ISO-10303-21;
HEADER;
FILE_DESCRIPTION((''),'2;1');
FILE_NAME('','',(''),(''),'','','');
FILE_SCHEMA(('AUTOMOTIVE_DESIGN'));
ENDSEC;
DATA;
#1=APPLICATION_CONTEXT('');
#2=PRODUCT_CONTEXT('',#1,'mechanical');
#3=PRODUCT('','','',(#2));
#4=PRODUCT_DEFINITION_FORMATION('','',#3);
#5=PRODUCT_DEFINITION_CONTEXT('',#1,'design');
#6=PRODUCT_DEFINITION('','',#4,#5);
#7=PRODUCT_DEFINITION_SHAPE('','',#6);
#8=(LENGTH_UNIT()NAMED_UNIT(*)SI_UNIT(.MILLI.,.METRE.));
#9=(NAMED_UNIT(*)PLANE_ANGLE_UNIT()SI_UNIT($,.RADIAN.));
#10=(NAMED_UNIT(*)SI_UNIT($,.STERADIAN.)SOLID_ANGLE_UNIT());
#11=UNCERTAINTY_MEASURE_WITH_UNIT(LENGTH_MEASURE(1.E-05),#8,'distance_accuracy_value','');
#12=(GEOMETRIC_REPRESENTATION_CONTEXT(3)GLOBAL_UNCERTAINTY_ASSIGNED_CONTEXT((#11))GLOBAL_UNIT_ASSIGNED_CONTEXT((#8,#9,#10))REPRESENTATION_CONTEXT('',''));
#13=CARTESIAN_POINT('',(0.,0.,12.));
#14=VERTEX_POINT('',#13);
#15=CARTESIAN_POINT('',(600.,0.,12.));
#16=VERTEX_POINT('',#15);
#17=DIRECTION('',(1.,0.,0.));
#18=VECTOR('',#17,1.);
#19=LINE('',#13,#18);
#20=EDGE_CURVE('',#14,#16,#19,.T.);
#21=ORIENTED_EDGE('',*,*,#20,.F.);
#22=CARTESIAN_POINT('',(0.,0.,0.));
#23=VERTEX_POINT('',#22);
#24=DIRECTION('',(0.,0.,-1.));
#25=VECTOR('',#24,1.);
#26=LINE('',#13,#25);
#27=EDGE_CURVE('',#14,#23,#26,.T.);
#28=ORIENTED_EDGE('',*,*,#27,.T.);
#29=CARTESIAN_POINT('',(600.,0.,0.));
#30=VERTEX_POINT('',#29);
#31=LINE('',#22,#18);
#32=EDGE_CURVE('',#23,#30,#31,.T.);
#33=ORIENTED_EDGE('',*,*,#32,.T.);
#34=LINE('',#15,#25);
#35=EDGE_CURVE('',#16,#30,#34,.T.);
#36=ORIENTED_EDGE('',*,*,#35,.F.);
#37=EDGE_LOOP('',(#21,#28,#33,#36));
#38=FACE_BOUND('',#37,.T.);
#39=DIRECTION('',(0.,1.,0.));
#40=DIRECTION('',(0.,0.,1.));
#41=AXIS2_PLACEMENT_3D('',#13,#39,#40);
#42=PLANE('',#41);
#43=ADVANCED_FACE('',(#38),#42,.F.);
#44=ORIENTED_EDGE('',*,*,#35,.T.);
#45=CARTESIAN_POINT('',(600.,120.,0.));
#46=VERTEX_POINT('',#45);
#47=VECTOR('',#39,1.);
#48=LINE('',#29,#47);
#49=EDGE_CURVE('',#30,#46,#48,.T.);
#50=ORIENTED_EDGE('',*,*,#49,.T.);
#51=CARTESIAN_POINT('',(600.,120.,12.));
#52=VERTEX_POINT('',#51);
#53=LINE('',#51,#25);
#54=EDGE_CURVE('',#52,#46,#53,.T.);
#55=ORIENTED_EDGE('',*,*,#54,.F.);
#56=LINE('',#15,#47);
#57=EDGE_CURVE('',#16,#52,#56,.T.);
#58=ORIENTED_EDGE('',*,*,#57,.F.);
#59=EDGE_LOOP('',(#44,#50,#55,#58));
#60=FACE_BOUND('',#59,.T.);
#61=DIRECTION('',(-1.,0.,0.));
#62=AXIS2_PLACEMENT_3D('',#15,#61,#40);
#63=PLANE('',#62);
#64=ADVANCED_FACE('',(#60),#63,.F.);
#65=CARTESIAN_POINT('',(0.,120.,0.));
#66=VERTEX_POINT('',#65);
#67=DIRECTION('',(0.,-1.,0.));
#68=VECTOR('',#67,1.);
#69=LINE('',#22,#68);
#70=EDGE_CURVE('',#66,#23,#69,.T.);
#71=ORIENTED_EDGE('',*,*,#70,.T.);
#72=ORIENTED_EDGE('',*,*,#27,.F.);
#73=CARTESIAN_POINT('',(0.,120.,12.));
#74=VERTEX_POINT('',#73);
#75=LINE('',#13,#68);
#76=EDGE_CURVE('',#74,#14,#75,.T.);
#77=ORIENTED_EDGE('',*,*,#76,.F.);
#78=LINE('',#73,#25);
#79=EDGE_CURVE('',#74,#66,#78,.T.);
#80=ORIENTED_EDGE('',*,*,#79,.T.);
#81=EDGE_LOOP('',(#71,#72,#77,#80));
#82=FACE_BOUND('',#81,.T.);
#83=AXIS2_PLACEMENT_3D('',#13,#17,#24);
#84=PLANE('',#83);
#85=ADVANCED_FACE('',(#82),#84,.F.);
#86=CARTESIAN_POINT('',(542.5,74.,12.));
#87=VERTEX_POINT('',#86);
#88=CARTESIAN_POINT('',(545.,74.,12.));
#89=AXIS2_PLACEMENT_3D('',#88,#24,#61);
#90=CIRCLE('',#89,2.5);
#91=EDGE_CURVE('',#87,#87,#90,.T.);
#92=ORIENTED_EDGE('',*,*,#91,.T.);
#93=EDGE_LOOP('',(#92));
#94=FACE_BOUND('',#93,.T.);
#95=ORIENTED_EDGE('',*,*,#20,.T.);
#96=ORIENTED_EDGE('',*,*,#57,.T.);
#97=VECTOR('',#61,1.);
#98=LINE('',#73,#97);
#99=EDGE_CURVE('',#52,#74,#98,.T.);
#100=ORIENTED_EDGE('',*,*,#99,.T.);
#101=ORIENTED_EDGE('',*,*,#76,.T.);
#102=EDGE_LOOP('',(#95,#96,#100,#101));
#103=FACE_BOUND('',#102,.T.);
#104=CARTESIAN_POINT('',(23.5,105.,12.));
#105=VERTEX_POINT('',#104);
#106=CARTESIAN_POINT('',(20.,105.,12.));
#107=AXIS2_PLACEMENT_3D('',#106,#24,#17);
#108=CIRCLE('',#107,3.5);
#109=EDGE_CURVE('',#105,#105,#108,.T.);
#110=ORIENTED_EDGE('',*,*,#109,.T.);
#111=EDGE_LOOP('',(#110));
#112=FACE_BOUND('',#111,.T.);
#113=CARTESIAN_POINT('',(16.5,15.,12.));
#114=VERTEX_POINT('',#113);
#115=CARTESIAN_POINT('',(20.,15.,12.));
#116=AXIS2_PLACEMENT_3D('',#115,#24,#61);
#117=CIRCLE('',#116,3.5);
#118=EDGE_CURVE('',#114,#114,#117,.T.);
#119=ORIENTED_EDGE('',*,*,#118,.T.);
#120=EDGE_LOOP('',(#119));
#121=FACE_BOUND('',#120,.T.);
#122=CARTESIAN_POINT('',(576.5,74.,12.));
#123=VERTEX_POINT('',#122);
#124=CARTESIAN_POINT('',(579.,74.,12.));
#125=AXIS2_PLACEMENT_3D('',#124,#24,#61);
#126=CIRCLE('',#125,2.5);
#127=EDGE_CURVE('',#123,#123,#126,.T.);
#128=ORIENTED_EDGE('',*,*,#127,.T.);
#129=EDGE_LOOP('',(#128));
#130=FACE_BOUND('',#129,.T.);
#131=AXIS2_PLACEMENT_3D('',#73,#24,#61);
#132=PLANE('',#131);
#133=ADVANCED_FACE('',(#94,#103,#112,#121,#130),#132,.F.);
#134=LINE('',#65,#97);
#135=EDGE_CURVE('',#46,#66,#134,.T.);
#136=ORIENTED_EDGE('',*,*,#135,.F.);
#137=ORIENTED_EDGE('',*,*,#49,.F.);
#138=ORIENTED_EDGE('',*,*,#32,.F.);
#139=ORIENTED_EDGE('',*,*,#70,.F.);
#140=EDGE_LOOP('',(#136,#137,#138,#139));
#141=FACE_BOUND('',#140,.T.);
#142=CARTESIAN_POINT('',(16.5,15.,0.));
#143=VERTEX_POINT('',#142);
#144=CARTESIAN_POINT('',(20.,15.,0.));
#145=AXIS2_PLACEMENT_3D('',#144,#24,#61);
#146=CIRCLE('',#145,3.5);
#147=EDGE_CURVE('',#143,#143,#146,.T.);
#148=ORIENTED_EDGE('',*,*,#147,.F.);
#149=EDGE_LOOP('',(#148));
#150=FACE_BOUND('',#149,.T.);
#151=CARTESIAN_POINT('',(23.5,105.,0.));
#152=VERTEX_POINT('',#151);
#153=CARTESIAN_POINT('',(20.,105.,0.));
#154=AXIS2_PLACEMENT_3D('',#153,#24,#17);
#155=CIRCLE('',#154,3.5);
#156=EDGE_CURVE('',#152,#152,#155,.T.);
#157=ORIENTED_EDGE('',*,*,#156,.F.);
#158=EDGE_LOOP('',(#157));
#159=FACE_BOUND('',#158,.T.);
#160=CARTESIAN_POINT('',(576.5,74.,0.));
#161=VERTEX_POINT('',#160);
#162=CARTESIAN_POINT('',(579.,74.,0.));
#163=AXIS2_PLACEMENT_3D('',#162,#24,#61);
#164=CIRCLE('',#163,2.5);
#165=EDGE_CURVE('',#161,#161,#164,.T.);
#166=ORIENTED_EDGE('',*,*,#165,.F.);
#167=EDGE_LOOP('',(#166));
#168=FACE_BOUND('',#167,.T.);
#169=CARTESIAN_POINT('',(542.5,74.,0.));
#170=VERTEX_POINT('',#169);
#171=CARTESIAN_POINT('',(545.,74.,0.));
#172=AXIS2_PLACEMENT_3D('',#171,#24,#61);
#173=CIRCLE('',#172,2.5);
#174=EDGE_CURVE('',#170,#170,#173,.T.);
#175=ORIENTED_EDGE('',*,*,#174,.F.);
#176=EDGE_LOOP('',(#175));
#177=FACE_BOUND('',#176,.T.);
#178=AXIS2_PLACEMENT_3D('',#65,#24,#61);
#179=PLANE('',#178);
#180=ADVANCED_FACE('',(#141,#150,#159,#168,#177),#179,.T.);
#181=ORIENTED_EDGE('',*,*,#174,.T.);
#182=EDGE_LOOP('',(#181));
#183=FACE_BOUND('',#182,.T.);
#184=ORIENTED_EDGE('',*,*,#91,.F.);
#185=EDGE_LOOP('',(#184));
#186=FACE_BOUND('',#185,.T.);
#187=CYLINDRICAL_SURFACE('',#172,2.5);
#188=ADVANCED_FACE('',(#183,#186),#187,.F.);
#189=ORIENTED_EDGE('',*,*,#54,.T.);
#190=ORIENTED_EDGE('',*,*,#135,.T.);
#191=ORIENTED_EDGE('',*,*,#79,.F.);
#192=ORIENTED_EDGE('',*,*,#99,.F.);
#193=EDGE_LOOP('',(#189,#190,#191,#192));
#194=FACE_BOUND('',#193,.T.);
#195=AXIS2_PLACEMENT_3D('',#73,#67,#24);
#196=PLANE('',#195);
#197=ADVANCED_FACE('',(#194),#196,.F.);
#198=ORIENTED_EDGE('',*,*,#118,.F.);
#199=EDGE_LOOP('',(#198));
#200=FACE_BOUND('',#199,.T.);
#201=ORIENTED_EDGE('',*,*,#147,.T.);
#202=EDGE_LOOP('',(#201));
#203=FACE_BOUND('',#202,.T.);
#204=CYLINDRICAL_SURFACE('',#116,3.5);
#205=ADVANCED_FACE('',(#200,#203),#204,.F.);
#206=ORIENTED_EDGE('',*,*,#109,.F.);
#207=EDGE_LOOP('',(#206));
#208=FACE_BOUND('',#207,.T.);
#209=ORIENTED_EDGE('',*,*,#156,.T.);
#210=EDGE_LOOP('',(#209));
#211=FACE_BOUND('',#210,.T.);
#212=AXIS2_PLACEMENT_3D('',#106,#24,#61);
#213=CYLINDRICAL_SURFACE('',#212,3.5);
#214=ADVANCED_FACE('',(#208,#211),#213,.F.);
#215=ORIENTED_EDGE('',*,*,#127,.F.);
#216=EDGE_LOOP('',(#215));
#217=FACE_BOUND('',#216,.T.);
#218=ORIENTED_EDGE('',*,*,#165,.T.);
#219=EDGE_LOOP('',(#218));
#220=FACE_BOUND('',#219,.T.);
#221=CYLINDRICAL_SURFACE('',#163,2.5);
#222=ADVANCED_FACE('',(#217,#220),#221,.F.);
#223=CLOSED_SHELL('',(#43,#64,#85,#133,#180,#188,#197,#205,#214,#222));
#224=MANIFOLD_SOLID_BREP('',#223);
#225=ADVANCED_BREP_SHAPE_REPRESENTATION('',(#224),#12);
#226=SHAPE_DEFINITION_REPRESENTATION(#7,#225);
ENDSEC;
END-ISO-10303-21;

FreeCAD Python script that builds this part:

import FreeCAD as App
import Part
import Sketcher


def add_polygon(sketch, points):
    """Adds a closed chain of lines whose ends are joined by coincident constraints."""
    first, n = sketch.GeometryCount, len(points)
    for a, b in zip(points, points[1:] + points[:1]):
        sketch.addGeometry(Part.LineSegment(App.Vector(*a, 0), App.Vector(*b, 0)), False)
    for i in range(n):
        sketch.addConstraint(Sketcher.Constraint("Coincident", first + i, 2, first + (i + 1) % n, 1))

doc = App.newDocument("Part")
body = doc.addObject("PartDesign::Body", "Body")

sketch1 = body.newObject("Sketcher::SketchObject", "Sketch")
sketch1.AttachmentSupport = (doc.getObject("XY_Plane"), [""])
sketch1.MapMode = "FlatFace"
add_polygon(sketch1, [(0, 120), (0, 0), (600, 0), (600, 120)])
sketch1.addConstraint(Sketcher.Constraint("Vertical", 0))
sketch1.addConstraint(Sketcher.Constraint("Horizontal", 1))
sketch1.addConstraint(Sketcher.Constraint("Vertical", 2))
sketch1.addConstraint(Sketcher.Constraint("Horizontal", 3))
sketch1.addConstraint(Sketcher.Constraint("Coincident", 0, 2, -1, 1))
sketch1.addConstraint(Sketcher.Constraint("DistanceX", 1, 1, 1, 2, 600.0))
sketch1.addConstraint(Sketcher.Constraint("DistanceY", 0, 2, 0, 1, 120.0))
pad1 = body.newObject("PartDesign::Pad", "Pad")
pad1.Profile = sketch1
pad1.Length = 12

sketch2 = body.newObject("Sketcher::SketchObject", "Sketch001")
sketch2.AttachmentSupport = (doc.getObject("XY_Plane"), [""])
sketch2.MapMode = "FlatFace"
sketch2.addGeometry(Part.Circle(App.Vector(20, 15, 0), App.Vector(0, 0, 1), 3.5), False)
sketch2.addGeometry(Part.Circle(App.Vector(20, 105, 0), App.Vector(0, 0, 1), 3.5), False)
sketch2.addConstraint(Sketcher.Constraint("Equal", 0, 1))
sketch2.addConstraint(Sketcher.Constraint("Vertical", 0, 3, 1, 3))
sketch2.addConstraint(Sketcher.Constraint("Diameter", 0, 7.0))
sketch2.addConstraint(Sketcher.Constraint("DistanceX", -1, 1, 0, 3, 20.0))
sketch2.addConstraint(Sketcher.Constraint("DistanceY", -1, 1, 0, 3, 15.0))
sketch2.addConstraint(Sketcher.Constraint("DistanceY", -1, 1, 1, 3, 105.0))
pocket1 = body.newObject("PartDesign::Pocket", "Pocket")
pocket1.Profile = sketch2
pocket1.Type = "ThroughAll"
pocket1.Reversed = True

sketch3 = body.newObject("Sketcher::SketchObject", "Sketch002")
sketch3.AttachmentSupport = (doc.getObject("XY_Plane"), [""])
sketch3.MapMode = "FlatFace"
sketch3.addGeometry(Part.Circle(App.Vector(579, 74, 0), App.Vector(0, 0, 1), 2.5), False)
sketch3.addGeometry(Part.Circle(App.Vector(545, 74, 0), App.Vector(0, 0, 1), 2.5), False)
sketch3.addConstraint(Sketcher.Constraint("Equal", 0, 1))
sketch3.addConstraint(Sketcher.Constraint("Horizontal", 0, 3, 1, 3))
sketch3.addConstraint(Sketcher.Constraint("Diameter", 0, 5.0))
sketch3.addConstraint(Sketcher.Constraint("DistanceX", -1, 1, 0, 3, 579.0))
sketch3.addConstraint(Sketcher.Constraint("DistanceY", -1, 1, 0, 3, 74.0))
sketch3.addConstraint(Sketcher.Constraint("DistanceX", -1, 1, 1, 3, 545.0))
doc.recompute()
hole = body.newObject("PartDesign::Hole", "Hole")
hole.Profile = sketch3
hole.ThreadType = "None"
hole.Diameter = 5
hole.DepthType = "ThroughAll"
hole.Reversed = True

doc.recompute()
